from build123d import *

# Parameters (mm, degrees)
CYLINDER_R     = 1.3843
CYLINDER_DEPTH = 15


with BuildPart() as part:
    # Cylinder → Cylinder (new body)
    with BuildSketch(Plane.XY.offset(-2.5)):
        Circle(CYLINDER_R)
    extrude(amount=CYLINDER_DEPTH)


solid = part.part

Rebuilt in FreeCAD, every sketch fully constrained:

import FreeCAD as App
import Part
import Sketcher
from FreeCAD import Vector
Q = App.Units.Quantity

doc = App.newDocument("Part")
body = doc.addObject("PartDesign::Body", "Body")

# Sketch on XY plane
sketch1 = body.newObject("Sketcher::SketchObject", "Sketch")
sketch1.AttachmentSupport = (doc.getObject("XY_Plane"), [""])
sketch1.MapMode = "FlatFace"
sketch1.AttachmentOffset = App.Placement(Vector(0, 0, -2.5), App.Rotation())
sketch1.addGeometry(Part.Circle(Vector(0, 0, 0), Vector(0, 0, 1), 1.4), False)
sketch1.addConstraint([
    Sketcher.Constraint("Coincident", 0, 3, -1, 1),
    Sketcher.Constraint("Diameter", 0, Q("2.7686 mm")),
])
pad1 = body.newObject("PartDesign::Pad", "Pad")
pad1.Profile = sketch1
pad1.Length = 15

doc.recompute()
